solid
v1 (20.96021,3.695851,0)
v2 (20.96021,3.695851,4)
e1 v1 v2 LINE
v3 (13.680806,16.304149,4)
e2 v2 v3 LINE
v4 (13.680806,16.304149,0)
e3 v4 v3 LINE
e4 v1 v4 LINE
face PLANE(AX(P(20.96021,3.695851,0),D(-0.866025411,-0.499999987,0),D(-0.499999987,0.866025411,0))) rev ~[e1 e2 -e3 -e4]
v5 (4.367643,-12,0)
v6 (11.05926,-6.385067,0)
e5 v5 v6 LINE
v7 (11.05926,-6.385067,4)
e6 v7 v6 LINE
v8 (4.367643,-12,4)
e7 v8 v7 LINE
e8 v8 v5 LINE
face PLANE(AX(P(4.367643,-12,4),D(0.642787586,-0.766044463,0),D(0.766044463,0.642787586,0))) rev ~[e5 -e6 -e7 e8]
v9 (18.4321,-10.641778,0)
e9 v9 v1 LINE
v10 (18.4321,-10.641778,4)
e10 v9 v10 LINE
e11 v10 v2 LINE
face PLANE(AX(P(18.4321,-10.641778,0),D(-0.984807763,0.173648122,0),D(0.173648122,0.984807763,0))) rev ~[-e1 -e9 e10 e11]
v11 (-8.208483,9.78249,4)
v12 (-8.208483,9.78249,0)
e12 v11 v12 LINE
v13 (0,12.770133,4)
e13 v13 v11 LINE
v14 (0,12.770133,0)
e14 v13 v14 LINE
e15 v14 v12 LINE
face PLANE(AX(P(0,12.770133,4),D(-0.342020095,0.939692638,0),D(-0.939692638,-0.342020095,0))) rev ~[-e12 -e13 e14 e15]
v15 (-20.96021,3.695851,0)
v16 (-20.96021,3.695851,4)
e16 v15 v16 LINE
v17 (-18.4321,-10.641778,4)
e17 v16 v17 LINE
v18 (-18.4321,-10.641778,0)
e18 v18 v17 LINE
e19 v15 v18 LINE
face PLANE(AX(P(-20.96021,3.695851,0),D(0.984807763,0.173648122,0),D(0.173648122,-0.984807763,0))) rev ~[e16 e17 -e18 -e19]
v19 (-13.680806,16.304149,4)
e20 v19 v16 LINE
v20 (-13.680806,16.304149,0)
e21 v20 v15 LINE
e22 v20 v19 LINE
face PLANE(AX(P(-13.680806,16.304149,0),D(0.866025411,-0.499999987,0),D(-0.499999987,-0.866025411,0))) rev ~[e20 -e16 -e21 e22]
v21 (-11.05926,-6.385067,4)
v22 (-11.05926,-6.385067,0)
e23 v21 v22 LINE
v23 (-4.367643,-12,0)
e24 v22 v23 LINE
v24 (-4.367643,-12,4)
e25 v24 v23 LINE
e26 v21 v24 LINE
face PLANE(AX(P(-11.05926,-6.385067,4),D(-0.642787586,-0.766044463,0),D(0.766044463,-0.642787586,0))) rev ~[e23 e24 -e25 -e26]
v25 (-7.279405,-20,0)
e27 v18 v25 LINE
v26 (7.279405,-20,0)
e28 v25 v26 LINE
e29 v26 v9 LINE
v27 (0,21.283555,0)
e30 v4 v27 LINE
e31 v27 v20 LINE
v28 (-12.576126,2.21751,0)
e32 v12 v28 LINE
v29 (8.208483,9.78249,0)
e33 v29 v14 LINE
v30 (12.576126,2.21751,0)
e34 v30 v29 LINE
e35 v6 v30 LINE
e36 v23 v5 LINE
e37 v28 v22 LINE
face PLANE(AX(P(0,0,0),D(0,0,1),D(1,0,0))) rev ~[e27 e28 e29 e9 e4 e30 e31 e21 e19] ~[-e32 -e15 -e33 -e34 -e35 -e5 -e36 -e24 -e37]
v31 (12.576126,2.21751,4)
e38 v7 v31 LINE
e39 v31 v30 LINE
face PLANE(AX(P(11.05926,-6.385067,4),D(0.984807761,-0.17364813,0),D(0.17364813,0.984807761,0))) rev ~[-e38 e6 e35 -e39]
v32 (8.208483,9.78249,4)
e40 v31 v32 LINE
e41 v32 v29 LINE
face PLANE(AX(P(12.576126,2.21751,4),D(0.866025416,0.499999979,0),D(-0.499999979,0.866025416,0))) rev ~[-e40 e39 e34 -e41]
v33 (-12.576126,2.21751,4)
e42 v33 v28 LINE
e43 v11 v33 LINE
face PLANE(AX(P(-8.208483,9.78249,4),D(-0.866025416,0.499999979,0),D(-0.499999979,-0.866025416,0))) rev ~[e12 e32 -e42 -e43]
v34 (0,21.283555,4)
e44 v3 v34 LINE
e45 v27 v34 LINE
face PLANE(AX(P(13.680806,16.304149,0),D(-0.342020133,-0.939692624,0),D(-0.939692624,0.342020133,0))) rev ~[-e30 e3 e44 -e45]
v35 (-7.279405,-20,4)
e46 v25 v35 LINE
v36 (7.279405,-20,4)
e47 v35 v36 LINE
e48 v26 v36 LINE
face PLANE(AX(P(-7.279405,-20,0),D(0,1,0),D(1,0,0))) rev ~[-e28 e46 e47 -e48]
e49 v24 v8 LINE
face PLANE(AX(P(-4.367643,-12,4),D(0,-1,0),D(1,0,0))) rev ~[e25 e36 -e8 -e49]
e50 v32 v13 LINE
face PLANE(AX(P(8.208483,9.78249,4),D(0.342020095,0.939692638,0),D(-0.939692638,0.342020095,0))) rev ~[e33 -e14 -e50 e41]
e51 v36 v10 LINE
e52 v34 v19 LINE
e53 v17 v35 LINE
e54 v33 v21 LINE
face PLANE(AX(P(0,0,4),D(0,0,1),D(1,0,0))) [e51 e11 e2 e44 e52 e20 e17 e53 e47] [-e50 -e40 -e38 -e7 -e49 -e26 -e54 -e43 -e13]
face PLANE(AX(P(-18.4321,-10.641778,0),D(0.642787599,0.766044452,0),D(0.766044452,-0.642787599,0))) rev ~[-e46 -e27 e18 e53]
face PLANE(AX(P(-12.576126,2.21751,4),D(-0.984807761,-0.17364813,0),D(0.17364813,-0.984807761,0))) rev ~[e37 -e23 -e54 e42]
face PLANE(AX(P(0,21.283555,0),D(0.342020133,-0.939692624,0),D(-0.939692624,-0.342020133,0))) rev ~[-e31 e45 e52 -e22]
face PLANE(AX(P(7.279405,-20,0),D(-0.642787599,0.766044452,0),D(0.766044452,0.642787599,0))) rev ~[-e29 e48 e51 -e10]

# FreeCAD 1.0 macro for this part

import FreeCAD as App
import Part
import Sketcher

V = App.Vector
Q = App.Units.Quantity


def add_polygon(sketch, points):
    """Adds a closed chain of lines whose ends are joined by coincident constraints."""
    first, n = sketch.GeometryCount, len(points)
    for a, b in zip(points, points[1:] + points[:1]):
        sketch.addGeometry(Part.LineSegment(App.Vector(*a, 0), App.Vector(*b, 0)), False)
    for i in range(n):
        sketch.addConstraint(Sketcher.Constraint("Coincident", first + i, 2, first + (i + 1) % n, 1))

doc = App.newDocument("Part")
body = doc.addObject("PartDesign::Body", "Body")

# Sketch on XY plane
sketch1 = body.newObject("Sketcher::SketchObject", "Sketch")
sketch1.AttachmentSupport = (doc.getObject("XY_Plane"), [""])
sketch1.MapMode = "FlatFace"
add_polygon(sketch1, [(-7.279405, -20), (7.279405, -20), (18.4321, -10.641778), (20.96021, 3.695851), (13.680806, 16.304149), (0, 21.283555), (-13.680806, 16.304149), (-20.96021, 3.695851), (-18.4321, -10.641778)])  # lines 0-8
sketch1.addConstraint(Sketcher.Constraint("Horizontal", 0))
sketch1.addConstraint(Sketcher.Constraint("Symmetric", 3, 2, 5, 2, -2))
sketch1.addConstraint(Sketcher.Constraint("Symmetric", 2, 2, 6, 2, -2))
sketch1.addConstraint(Sketcher.Constraint("Symmetric", 1, 2, 7, 2, -2))
sketch1.addConstraint(Sketcher.Constraint("PointOnObject", 4, 2, -2))
sketch1.addConstraint(Sketcher.Constraint("Equal", 1, 2))
sketch1.addConstraint(Sketcher.Constraint("Equal", 2, 3))
sketch1.addConstraint(Sketcher.Constraint("Equal", 3, 4))
sketch1.addConstraint(Sketcher.Constraint("Equal", 7, 8))
sketch1.addConstraint(Sketcher.Constraint("Angle", 1, Q("39.999999 deg")))
sketch1.addConstraint(Sketcher.Constraint("Angle", 2, Q("80.000003 deg")))
sketch1.addConstraint(Sketcher.Constraint("Angle", 3, Q("119.999999 deg")))
sketch1.addConstraint(Sketcher.Constraint("Angle", 4, Q("160.000001 deg")))
sketch1.addConstraint(Sketcher.Constraint("DistanceY", 0, 2, -1, 1, 20.0))
sketch1.addConstraint(Sketcher.Constraint("DistanceX", 0, 1, 0, 2, 14.55881))
pad1 = body.newObject("PartDesign::Pad", "Pad")
pad1.Profile = sketch1
pad1.Length = 4

# Sketch on XY plane
sketch2 = body.newObject("Sketcher::SketchObject", "Sketch001")
sketch2.AttachmentSupport = (doc.getObject("XY_Plane"), [""])
sketch2.MapMode = "FlatFace"
sketch2.AttachmentOffset = App.Placement(V(0, 0, 4), App.Rotation())
add_polygon(sketch2, [(-11.05926, -6.385067), (-4.367643, -12), (4.367643, -12), (11.05926, -6.385067), (12.576126, 2.21751), (8.208483, 9.78249), (0, 12.770133), (-8.208483, 9.78249), (-12.576126, 2.21751)])  # lines 0-8
sketch2.addConstraint(Sketcher.Constraint("Horizontal", 1))
sketch2.addConstraint(Sketcher.Constraint("Symmetric", 4, 2, 6, 2, -2))
sketch2.addConstraint(Sketcher.Constraint("Symmetric", 3, 2, 7, 2, -2))
sketch2.addConstraint(Sketcher.Constraint("Symmetric", 2, 2, 8, 2, -2))
sketch2.addConstraint(Sketcher.Constraint("PointOnObject", 5, 2, -2))
sketch2.addConstraint(Sketcher.Constraint("Equal", 0, 2))
sketch2.addConstraint(Sketcher.Constraint("Equal", 2, 3))
sketch2.addConstraint(Sketcher.Constraint("Equal", 3, 4))
sketch2.addConstraint(Sketcher.Constraint("Equal", 4, 5))
sketch2.addConstraint(Sketcher.Constraint("Angle", 0, Q("-39.999998 deg")))
sketch2.addConstraint(Sketcher.Constraint("Angle", 3, Q("80.000003 deg")))
sketch2.addConstraint(Sketcher.Constraint("Angle", 4, Q("119.999999 deg")))
sketch2.addConstraint(Sketcher.Constraint("Angle", 5, Q("160.000003 deg")))
sketch2.addConstraint(Sketcher.Constraint("DistanceY", 0, 2, -1, 1, 12.0))
sketch2.addConstraint(Sketcher.Constraint("DistanceY", 2, 2, 5, 2, 19.1552))
pocket1 = body.newObject("PartDesign::Pocket", "Pocket")
pocket1.Profile = sketch2
pocket1.Length = 25

doc.recompute()
